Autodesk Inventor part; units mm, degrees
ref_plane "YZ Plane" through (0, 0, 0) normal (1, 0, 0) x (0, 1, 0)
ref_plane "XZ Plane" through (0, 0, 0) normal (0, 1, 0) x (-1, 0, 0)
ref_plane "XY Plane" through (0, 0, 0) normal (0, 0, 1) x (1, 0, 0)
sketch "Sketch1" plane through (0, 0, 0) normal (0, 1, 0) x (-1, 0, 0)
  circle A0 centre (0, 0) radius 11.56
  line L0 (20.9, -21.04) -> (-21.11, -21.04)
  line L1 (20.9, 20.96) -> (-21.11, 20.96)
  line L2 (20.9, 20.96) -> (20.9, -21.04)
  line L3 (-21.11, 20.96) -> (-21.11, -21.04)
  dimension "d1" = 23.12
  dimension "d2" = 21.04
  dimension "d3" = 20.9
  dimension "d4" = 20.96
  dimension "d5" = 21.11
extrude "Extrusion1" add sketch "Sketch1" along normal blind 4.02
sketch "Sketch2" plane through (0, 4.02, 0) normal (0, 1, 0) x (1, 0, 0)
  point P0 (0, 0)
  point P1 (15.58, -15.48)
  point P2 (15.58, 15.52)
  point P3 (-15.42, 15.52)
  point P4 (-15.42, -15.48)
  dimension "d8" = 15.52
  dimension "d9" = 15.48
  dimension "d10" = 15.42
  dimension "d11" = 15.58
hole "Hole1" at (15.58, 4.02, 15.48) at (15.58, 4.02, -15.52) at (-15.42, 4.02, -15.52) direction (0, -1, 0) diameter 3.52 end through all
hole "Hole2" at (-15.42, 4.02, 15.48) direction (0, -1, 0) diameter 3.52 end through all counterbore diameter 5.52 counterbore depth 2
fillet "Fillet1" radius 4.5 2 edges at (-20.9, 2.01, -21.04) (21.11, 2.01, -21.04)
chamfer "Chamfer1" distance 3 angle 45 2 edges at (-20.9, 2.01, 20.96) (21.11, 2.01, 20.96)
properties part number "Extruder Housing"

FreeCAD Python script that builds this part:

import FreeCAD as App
import Part
import Sketcher
from FreeCAD import Vector


def edges_at(feature, points):
    """Names of the edges that pass closest to the given points."""
    edges = feature.Shape.Edges
    near = lambda p: min(range(len(edges)), key=lambda i: edges[i].distToShape(Part.Vertex(*p))[0])
    return sorted({f"Edge{near(p) + 1}" for p in points})


def add_polygon(sketch, points):
    """Adds a closed chain of lines whose ends are joined by coincident constraints."""
    first, n = sketch.GeometryCount, len(points)
    for a, b in zip(points, points[1:] + points[:1]):
        sketch.addGeometry(Part.LineSegment(App.Vector(*a, 0), App.Vector(*b, 0)), False)
    for i in range(n):
        sketch.addConstraint(Sketcher.Constraint("Coincident", first + i, 2, first + (i + 1) % n, 1))

doc = App.newDocument("Part")
body = doc.addObject("PartDesign::Body", "Body")

# Sketch on XZ plane
sketch1 = doc.addObject("Sketcher::SketchObject", "Sketch")
body.addObject(sketch1)
sketch1.AttachmentSupport = (doc.XZ_Plane, [""])
sketch1.MapMode = "FlatFace"
add_polygon(sketch1, [(21.11, -21.04), (-20.9, -21.04), (-20.9, 20.96), (21.11, 20.96)])  # lines 0-3
sketch1.addGeometry(Part.Circle(Vector(0, 0, 0), Vector(0, 0, 1), 11.56), False)  # 4
sketch1.addConstraint([
    Sketcher.Constraint("Horizontal", 0),
    Sketcher.Constraint("Vertical", 1),
    Sketcher.Constraint("Horizontal", 2),
    Sketcher.Constraint("Vertical", 3),
    Sketcher.Constraint("Coincident", 4, 3, -1, 1),
    Sketcher.Constraint("Diameter", 4, 23.12),
    Sketcher.Constraint("DistanceX", 0, 2, -1, 1, 20.9),
    Sketcher.Constraint("DistanceY", 1, 1, 1, 2, 42.0),
    Sketcher.Constraint("DistanceY", 0, 2, -1, 1, 21.04),
    Sketcher.Constraint("DistanceX", -1, 1, 2, 2, 21.11),
])
pad1 = doc.addObject("PartDesign::Pad", "Pad")
body.addObject(pad1)
pad1.Profile = sketch1
pad1.Length = 4.02
pad1.Reversed = True

# Sketch on XZ plane
sketch2 = doc.addObject("Sketcher::SketchObject", "Sketch001")
body.addObject(sketch2)
sketch2.AttachmentSupport = (doc.XZ_Plane, [""])
sketch2.MapMode = "FlatFace"
sketch2.AttachmentOffset = App.Placement(Vector(0, 0, -4.02), App.Rotation())
sketch2.addGeometry([
    Part.Circle(Vector(15.58, 15.48, 0), Vector(0, 0, 1), 1.76),
    Part.Circle(Vector(15.58, -15.52, 0), Vector(0, 0, 1), 1.76),
    Part.Circle(Vector(-15.42, -15.52, 0), Vector(0, 0, 1), 1.76),
], False)
sketch2.addConstraint([
    Sketcher.Constraint("Equal", 0, 1),
    Sketcher.Constraint("Equal", 1, 2),
    Sketcher.Constraint("Horizontal", 1, 3, 2, 3),
    Sketcher.Constraint("Vertical", 0, 3, 1, 3),
    Sketcher.Constraint("Diameter", 0, 3.52),
    Sketcher.Constraint("DistanceY", 1, 3, 0, 3, 31.0),
    Sketcher.Constraint("DistanceX", 2, 3, 1, 3, 31.0),
    Sketcher.Constraint("DistanceX", -1, 1, 0, 3, 15.58),
    Sketcher.Constraint("DistanceY", -1, 1, 0, 3, 15.48),
])
doc.recompute()
hole = doc.addObject("PartDesign::Hole", "Hole")
body.addObject(hole)
hole.Profile = sketch2
hole.ThreadType = "None"
hole.Diameter = 3.52
hole.DepthType = "ThroughAll"
hole.Reversed = True

# Sketch on XZ plane
sketch3 = doc.addObject("Sketcher::SketchObject", "Sketch002")
body.addObject(sketch3)
sketch3.AttachmentSupport = (doc.XZ_Plane, [""])
sketch3.MapMode = "FlatFace"
sketch3.AttachmentOffset = App.Placement(Vector(0, 0, -4.02), App.Rotation())
sketch3.addGeometry(Part.Circle(Vector(-15.42, 15.48, 0), Vector(0, 0, 1), 1.76), False)
sketch3.addConstraint([
    Sketcher.Constraint("Diameter", 0, 3.52),
    Sketcher.Constraint("DistanceX", 0, 3, -1, 1, 15.42),
    Sketcher.Constraint("DistanceY", -1, 1, 0, 3, 15.48),
])
doc.recompute()
hole2 = doc.addObject("PartDesign::Hole", "Hole001")
body.addObject(hole2)
hole2.Profile = sketch3
hole2.ThreadType = "None"
hole2.Diameter = 3.52
hole2.DepthType = "ThroughAll"
hole2.HoleCutType = "Counterbore"
hole2.HoleCutDiameter = 5.52
hole2.HoleCutDepth = 2
hole2.Reversed = True
doc.recompute()

fillet = doc.addObject("PartDesign::Fillet", "Fillet")
body.addObject(fillet)
fillet.Base = (hole2, edges_at(hole2, [(-20.9, 2.01, -21.04), (21.11, 2.01, -21.04)]))
fillet.Radius = 4.5
doc.recompute()

chamfer = doc.addObject("PartDesign::Chamfer", "Chamfer")
body.addObject(chamfer)
chamfer.Base = (fillet, edges_at(fillet, [(-20.9, 2.01, 20.96), (21.11, 2.01, 20.96)]))
chamfer.Size = 3

doc.recompute()
